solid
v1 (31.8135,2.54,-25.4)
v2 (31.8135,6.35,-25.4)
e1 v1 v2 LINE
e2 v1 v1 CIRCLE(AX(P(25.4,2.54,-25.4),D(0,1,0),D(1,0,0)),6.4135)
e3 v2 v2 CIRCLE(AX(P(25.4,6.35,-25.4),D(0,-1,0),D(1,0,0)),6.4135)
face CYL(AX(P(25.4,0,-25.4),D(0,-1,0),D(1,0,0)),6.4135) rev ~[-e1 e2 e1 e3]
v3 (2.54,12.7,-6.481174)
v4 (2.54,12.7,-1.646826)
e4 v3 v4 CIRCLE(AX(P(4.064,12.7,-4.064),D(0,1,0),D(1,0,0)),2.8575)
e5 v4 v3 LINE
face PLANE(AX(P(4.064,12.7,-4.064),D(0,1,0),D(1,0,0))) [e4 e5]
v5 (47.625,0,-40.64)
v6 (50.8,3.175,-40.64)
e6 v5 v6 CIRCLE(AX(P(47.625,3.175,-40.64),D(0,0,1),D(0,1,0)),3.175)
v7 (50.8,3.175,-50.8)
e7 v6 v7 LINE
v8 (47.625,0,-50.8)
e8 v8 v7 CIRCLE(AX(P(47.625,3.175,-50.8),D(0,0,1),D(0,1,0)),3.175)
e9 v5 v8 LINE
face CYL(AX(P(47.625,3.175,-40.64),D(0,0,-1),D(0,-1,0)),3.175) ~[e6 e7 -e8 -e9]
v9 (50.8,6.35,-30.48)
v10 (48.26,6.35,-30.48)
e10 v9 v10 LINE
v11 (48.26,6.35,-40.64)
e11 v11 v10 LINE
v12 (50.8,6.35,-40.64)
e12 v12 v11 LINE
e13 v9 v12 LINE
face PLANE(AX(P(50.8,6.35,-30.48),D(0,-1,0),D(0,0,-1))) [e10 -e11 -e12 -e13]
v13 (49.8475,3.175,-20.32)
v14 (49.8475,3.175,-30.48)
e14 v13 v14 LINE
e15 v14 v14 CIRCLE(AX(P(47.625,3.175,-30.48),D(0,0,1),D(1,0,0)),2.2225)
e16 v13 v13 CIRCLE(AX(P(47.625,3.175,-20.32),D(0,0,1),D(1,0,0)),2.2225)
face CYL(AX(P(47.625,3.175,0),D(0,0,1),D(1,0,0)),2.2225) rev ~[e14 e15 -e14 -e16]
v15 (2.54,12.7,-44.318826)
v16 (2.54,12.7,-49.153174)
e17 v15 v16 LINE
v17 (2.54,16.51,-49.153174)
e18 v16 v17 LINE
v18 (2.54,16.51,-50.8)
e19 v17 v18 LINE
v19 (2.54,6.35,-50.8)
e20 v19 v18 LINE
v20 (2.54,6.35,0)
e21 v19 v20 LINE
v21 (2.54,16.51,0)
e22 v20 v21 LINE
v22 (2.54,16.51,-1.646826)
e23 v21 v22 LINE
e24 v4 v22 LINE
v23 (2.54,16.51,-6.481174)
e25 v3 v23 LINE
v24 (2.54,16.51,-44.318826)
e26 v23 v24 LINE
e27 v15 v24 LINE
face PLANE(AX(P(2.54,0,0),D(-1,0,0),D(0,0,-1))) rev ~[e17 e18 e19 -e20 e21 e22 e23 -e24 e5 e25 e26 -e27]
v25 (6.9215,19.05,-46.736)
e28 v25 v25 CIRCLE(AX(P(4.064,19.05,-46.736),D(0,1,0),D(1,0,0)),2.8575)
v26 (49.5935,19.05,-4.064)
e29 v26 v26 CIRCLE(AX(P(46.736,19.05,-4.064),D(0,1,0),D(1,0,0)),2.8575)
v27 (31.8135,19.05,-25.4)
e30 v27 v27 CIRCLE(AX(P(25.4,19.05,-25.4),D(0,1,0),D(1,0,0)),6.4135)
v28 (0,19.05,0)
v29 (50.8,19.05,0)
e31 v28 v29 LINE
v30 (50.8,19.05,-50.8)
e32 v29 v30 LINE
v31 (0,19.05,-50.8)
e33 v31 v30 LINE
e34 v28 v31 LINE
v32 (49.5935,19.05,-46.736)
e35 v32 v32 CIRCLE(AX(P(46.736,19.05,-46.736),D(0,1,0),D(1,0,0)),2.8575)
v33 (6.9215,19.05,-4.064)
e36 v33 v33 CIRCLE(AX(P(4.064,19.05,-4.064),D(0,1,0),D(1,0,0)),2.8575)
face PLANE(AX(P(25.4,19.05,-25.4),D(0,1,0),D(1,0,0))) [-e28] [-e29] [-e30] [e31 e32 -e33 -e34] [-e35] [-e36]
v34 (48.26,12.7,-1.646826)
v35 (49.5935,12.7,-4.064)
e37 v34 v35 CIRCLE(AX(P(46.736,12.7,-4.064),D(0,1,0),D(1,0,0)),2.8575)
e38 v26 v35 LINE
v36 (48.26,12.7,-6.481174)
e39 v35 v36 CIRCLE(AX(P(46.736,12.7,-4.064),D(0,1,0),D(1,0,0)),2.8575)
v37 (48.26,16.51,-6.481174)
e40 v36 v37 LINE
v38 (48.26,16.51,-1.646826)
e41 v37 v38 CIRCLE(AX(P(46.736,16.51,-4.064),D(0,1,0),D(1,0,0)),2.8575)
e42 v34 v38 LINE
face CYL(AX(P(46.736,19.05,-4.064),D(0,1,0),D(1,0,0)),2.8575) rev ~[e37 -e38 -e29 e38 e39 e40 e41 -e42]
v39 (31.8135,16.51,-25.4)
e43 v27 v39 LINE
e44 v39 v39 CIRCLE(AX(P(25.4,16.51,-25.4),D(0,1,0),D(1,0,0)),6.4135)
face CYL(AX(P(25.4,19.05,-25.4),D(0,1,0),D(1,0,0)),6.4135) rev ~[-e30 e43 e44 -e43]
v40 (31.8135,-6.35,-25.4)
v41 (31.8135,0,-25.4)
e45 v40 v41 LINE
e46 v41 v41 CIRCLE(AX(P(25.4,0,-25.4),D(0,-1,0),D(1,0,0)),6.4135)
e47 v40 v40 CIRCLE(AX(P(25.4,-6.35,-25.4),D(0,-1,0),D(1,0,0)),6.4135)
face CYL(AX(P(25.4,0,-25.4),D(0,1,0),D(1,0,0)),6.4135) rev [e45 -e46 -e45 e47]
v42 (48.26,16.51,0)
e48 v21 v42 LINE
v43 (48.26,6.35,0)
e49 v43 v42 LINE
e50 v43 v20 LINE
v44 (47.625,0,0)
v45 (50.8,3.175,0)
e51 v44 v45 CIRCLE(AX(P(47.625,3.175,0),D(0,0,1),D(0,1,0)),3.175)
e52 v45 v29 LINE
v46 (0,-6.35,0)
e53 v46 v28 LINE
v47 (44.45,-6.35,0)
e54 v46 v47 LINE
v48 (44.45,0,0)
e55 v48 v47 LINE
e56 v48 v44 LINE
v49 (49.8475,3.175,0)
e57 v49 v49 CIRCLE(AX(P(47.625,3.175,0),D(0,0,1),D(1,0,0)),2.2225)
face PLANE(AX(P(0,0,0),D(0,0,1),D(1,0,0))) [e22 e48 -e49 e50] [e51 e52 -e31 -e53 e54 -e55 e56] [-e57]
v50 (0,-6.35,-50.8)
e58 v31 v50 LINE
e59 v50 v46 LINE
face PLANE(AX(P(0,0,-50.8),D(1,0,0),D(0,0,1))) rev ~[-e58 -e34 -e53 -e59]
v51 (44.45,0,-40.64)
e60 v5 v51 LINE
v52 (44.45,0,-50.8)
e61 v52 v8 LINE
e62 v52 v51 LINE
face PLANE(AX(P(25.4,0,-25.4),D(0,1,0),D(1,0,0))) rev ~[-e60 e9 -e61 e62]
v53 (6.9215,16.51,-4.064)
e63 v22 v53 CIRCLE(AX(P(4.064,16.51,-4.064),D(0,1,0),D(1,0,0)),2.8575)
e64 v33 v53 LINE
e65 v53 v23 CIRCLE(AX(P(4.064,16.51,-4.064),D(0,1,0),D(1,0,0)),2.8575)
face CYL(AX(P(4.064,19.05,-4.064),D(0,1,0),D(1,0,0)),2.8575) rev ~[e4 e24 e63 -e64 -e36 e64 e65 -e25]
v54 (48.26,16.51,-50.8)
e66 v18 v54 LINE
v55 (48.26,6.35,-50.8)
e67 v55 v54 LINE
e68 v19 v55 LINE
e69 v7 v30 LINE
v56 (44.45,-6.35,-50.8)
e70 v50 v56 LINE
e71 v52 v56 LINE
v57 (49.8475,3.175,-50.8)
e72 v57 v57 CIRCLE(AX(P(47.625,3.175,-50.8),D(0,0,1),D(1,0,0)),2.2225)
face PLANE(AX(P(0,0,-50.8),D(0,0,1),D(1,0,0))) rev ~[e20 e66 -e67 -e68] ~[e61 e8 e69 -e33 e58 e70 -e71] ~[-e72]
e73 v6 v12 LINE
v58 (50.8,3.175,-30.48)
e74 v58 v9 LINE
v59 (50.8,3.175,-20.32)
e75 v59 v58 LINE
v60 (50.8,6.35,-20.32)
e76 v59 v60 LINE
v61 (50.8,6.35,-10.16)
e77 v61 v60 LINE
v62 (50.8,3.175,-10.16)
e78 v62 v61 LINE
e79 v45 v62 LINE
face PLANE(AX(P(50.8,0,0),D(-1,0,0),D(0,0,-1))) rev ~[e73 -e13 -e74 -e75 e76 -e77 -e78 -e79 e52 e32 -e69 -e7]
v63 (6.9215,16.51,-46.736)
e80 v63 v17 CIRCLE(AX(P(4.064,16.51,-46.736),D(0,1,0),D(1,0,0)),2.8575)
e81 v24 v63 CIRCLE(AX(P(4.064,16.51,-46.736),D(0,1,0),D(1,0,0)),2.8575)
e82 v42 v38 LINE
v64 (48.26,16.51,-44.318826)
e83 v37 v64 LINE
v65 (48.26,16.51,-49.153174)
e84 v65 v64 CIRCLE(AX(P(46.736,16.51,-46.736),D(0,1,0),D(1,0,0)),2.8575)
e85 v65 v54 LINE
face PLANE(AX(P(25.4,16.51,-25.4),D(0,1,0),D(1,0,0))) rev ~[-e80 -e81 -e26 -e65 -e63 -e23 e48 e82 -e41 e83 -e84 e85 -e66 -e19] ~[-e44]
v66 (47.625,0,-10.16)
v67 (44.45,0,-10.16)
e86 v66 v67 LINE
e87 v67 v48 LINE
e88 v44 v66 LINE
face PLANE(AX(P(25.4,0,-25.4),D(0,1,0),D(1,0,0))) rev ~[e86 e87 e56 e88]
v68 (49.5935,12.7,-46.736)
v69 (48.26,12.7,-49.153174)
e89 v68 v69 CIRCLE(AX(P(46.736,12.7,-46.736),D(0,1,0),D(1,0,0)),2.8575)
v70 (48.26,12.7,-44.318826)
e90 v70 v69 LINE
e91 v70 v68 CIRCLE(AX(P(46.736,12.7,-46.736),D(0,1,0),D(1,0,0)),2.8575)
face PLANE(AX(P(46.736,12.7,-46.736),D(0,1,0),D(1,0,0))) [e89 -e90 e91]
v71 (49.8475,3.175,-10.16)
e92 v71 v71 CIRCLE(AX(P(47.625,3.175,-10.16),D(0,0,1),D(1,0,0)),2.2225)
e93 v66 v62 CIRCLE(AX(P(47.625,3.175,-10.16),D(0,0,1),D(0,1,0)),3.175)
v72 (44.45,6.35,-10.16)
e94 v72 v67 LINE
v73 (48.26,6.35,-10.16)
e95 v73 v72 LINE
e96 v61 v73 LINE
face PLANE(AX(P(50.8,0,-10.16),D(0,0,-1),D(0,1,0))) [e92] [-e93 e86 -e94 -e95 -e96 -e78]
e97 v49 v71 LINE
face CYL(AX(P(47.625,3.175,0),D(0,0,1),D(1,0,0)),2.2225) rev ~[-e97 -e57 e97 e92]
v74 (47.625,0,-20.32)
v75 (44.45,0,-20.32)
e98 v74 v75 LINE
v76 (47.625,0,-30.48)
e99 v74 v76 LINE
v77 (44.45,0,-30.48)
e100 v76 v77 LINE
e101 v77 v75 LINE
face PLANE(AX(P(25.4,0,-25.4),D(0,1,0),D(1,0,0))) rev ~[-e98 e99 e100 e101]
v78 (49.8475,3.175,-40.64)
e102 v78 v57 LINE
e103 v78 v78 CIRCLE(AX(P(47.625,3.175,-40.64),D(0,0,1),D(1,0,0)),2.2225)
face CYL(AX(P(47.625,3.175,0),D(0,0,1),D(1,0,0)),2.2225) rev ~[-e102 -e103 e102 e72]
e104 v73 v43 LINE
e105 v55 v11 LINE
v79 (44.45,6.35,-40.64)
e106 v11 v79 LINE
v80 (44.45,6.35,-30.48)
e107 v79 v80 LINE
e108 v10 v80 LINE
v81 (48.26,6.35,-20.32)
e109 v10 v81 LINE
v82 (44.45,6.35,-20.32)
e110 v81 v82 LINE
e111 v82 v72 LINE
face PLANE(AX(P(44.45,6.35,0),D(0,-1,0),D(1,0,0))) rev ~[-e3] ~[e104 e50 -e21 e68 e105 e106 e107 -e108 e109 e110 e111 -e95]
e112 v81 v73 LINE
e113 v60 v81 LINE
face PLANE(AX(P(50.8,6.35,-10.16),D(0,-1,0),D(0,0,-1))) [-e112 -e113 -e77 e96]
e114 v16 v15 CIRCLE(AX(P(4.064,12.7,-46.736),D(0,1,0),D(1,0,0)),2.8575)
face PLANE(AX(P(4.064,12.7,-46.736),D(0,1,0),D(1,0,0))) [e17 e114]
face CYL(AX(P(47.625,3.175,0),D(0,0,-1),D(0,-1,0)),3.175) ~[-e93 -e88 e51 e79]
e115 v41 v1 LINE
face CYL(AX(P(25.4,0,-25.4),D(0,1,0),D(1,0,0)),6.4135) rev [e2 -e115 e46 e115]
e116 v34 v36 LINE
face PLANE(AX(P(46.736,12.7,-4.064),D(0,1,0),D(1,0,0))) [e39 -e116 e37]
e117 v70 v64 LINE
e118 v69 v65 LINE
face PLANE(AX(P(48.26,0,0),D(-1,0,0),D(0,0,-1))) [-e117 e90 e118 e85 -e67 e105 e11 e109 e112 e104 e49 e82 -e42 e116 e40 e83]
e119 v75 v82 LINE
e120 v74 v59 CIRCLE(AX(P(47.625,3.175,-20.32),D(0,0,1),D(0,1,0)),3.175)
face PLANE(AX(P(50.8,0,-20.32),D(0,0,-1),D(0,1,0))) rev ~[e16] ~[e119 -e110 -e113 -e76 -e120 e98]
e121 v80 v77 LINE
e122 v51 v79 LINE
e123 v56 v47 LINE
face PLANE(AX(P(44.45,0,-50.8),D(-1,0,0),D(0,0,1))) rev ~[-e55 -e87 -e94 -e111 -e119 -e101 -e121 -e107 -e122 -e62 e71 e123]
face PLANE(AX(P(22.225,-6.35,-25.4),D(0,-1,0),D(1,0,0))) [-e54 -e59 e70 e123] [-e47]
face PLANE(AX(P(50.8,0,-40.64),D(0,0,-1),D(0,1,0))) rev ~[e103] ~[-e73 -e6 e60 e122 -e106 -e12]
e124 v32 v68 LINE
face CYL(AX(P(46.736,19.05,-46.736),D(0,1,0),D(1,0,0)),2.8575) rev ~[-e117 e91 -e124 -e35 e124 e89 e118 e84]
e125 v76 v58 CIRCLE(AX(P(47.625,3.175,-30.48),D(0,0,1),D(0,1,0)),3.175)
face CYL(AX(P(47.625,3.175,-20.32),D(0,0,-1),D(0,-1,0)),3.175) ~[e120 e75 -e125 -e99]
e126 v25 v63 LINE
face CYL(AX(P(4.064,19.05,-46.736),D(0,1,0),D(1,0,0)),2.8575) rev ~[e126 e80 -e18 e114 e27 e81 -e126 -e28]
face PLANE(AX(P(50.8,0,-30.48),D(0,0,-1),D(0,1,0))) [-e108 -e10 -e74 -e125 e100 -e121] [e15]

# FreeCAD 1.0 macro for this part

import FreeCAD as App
import Part
import Sketcher
from FreeCAD import Vector
Q = App.Units.Quantity


def edges_at(feature, points):
    """Names of the edges that pass closest to the given points."""
    edges = feature.Shape.Edges
    near = lambda p: min(range(len(edges)), key=lambda i: edges[i].distToShape(Part.Vertex(*p))[0])
    return sorted({f"Edge{near(p) + 1}" for p in points})


def faces_at(feature, points):
    """Names of the faces that lie closest to the given points."""
    faces = feature.Shape.Faces
    near = lambda p: min(range(len(faces)), key=lambda i: faces[i].distToShape(Part.Vertex(*p))[0])
    return sorted({f"Face{near(p) + 1}" for p in points})


def add_polygon(sketch, points):
    """Adds a closed chain of lines whose ends are joined by coincident constraints."""
    first, n = sketch.GeometryCount, len(points)
    for a, b in zip(points, points[1:] + points[:1]):
        sketch.addGeometry(Part.LineSegment(App.Vector(*a, 0), App.Vector(*b, 0)), False)
    for i in range(n):
        sketch.addConstraint(Sketcher.Constraint("Coincident", first + i, 2, first + (i + 1) % n, 1))

doc = App.newDocument("Part")
body = doc.addObject("PartDesign::Body", "Body")

# Sketch on XZ plane
sketch1 = doc.addObject("Sketcher::SketchObject", "Sketch")
body.addObject(sketch1)
sketch1.AttachmentSupport = (doc.XZ_Plane, [""])
sketch1.MapMode = "FlatFace"
add_polygon(sketch1, [(0, -50.8), (0, 0), (50.8, 0), (50.8, -50.8)])  # lines 0-3
sketch1.addConstraint(Sketcher.Constraint("Vertical", 0))
sketch1.addConstraint(Sketcher.Constraint("Horizontal", 1))
sketch1.addConstraint(Sketcher.Constraint("Vertical", 2))
sketch1.addConstraint(Sketcher.Constraint("Horizontal", 3))
sketch1.addConstraint(Sketcher.Constraint("Coincident", 0, 2, -1, 1))
sketch1.addConstraint(Sketcher.Constraint("Equal", 3, 0))
sketch1.addConstraint(Sketcher.Constraint("DistanceX", 1, 1, 1, 2, Q("2 in")))
pad1 = doc.addObject("PartDesign::Pad", "Pad")
body.addObject(pad1)
pad1.Profile = sketch1
pad1.Length = Q("0.75 in")
pad1.Reversed = True
doc.recompute()

thickness = doc.addObject("PartDesign::Thickness", "Thickness")
body.addObject(thickness)
thickness.Base = (pad1, faces_at(pad1, [(25.4, 9.525, -50.8), (25.4, 9.525, 0)]))
thickness.Value = Q("0.1 in")
thickness.Reversed = True
thickness.Join = "Intersection"

# Sketch on XZ plane
sketch2 = doc.addObject("Sketcher::SketchObject", "Sketch001")
body.addObject(sketch2)
sketch2.AttachmentSupport = (doc.XZ_Plane, [""])
sketch2.MapMode = "FlatFace"
sketch2.AttachmentOffset = App.Placement(Vector(0, 0, -0.75 * 25.4), App.Rotation())
sketch2.addGeometry(Part.Circle(Vector(25.4, -25.4, 0), Vector(0, 0, 1), 6.4135), False)
sketch2.addGeometry(Part.Circle(Vector(4.064, -46.736, 0), Vector(0, 0, 1), 2.8575), False)
sketch2.addGeometry(Part.Circle(Vector(46.736, -46.736, 0), Vector(0, 0, 1), 2.8575), False)
sketch2.addGeometry(Part.Circle(Vector(46.736, -4.064, 0), Vector(0, 0, 1), 2.8575), False)
sketch2.addGeometry(Part.Circle(Vector(4.064, -4.064, 0), Vector(0, 0, 1), 2.8575), False)
sketch2.addConstraint(Sketcher.Constraint("Equal", 1, 2))
sketch2.addConstraint(Sketcher.Constraint("Equal", 2, 3))
sketch2.addConstraint(Sketcher.Constraint("Equal", 3, 4))
sketch2.addConstraint(Sketcher.Constraint("Horizontal", 1, 3, 2, 3))
sketch2.addConstraint(Sketcher.Constraint("Horizontal", 3, 3, 4, 3))
sketch2.addConstraint(Sketcher.Constraint("Vertical", 2, 3, 3, 3))
sketch2.addConstraint(Sketcher.Constraint("Vertical", 1, 3, 4, 3))
sketch2.addConstraint(Sketcher.Constraint("Diameter", 0, Q("0.505 in")))
sketch2.addConstraint(Sketcher.Constraint("Diameter", 1, Q("0.225 in")))
sketch2.addConstraint(Sketcher.Constraint("DistanceX", -1, 1, 0, 3, Q("1 in")))
sketch2.addConstraint(Sketcher.Constraint("DistanceY", 0, 3, -1, 1, Q("1 in")))
sketch2.addConstraint(Sketcher.Constraint("DistanceX", -1, 1, 1, 3, Q("0.16 in")))
sketch2.addConstraint(Sketcher.Constraint("DistanceY", 1, 3, -1, 1, Q("1.84 in")))
sketch2.addConstraint(Sketcher.Constraint("DistanceX", -1, 1, 2, 3, Q("1.84 in")))
sketch2.addConstraint(Sketcher.Constraint("DistanceY", 3, 3, -1, 1, Q("0.16 in")))
pocket1 = doc.addObject("PartDesign::Pocket", "Pocket")
body.addObject(pocket1)
pocket1.Profile = sketch2
pocket1.Length = Q("0.25 in")
pocket1.Reversed = True

# Sketch on XY plane
sketch3 = doc.addObject("Sketcher::SketchObject", "Sketch002")
body.addObject(sketch3)
sketch3.AttachmentSupport = (doc.XY_Plane, [""])
sketch3.MapMode = "FlatFace"
add_polygon(sketch3, [(44.45, 6.35), (44.45, 0), (50.8, 0), (50.8, 6.35)])  # lines 0-3
sketch3.addConstraint(Sketcher.Constraint("Vertical", 0))
sketch3.addConstraint(Sketcher.Constraint("Horizontal", 1))
sketch3.addConstraint(Sketcher.Constraint("Vertical", 2))
sketch3.addConstraint(Sketcher.Constraint("Horizontal", 3))
sketch3.addConstraint(Sketcher.Constraint("PointOnObject", 0, 2, -1))
sketch3.addConstraint(Sketcher.Constraint("Equal", 3, 0))
sketch3.addConstraint(Sketcher.Constraint("DistanceX", -1, 1, 1, 2, Q("2 in")))
sketch3.addConstraint(Sketcher.Constraint("DistanceX", 1, 1, 1, 2, Q("0.25 in")))
pad2 = doc.addObject("PartDesign::Pad", "Pad001")
body.addObject(pad2)
pad2.Profile = sketch3
pad2.Length = Q("2 in")
pad2.Reversed = True

# Sketch on XY plane
sketch4 = doc.addObject("Sketcher::SketchObject", "Sketch003")
body.addObject(sketch4)
sketch4.AttachmentSupport = (doc.XY_Plane, [""])
sketch4.MapMode = "FlatFace"
sketch4.addGeometry(Part.Circle(Vector(47.625, 3.175, 0), Vector(0, 0, 1), 2.2225), False)
sketch4.addConstraint(Sketcher.Constraint("Diameter", 0, Q("0.175 in")))
sketch4.addConstraint(Sketcher.Constraint("DistanceX", -1, 1, 0, 3, Q("1.875 in")))
sketch4.addConstraint(Sketcher.Constraint("DistanceY", -1, 1, 0, 3, Q("0.125 in")))
pocket2 = doc.addObject("PartDesign::Pocket", "Pocket001")
body.addObject(pocket2)
pocket2.Profile = sketch4
pocket2.Type = "ThroughAll"

# Sketch on YZ plane
sketch5 = doc.addObject("Sketcher::SketchObject", "Sketch004")
body.addObject(sketch5)
sketch5.AttachmentSupport = (doc.YZ_Plane, [""])
sketch5.MapMode = "FlatFace"
sketch5.AttachmentOffset = App.Placement(Vector(0, 0, 2 * 25.4), App.Rotation())
add_polygon(sketch5, [(6.35, -10.16), (0, -10.16), (0, -20.32), (6.35, -20.32)])  # lines 0-3
add_polygon(sketch5, [(6.35, -30.48), (0, -30.48), (0, -40.64), (6.35, -40.64)])  # lines 4-7
sketch5.addConstraint(Sketcher.Constraint("Horizontal", 0))
sketch5.addConstraint(Sketcher.Constraint("Vertical", 1))
sketch5.addConstraint(Sketcher.Constraint("Horizontal", 2))
sketch5.addConstraint(Sketcher.Constraint("Vertical", 3))
sketch5.addConstraint(Sketcher.Constraint("Horizontal", 4))
sketch5.addConstraint(Sketcher.Constraint("Vertical", 5))
sketch5.addConstraint(Sketcher.Constraint("Horizontal", 6))
sketch5.addConstraint(Sketcher.Constraint("Vertical", 7))
sketch5.addConstraint(Sketcher.Constraint("PointOnObject", 0, 2, -2))
sketch5.addConstraint(Sketcher.Constraint("PointOnObject", 4, 2, -2))
sketch5.addConstraint(Sketcher.Constraint("Vertical", 3, 2, 6, 2))
sketch5.addConstraint(Sketcher.Constraint("Equal", 3, 5))
sketch5.addConstraint(Sketcher.Constraint("DistanceY", 1, 2, 1, 1, Q("0.4 in")))
sketch5.addConstraint(Sketcher.Constraint("DistanceX", 0, 2, 0, 1, Q("0.25 in")))
sketch5.addConstraint(Sketcher.Constraint("DistanceY", 0, 2, -1, 1, Q("0.4 in")))
sketch5.addConstraint(Sketcher.Constraint("DistanceY", 4, 2, -1, 1, Q("1.2 in")))
pocket3 = doc.addObject("PartDesign::Pocket", "Pocket002")
body.addObject(pocket3)
pocket3.Profile = sketch5
pocket3.Length = Q("0.25 in")
doc.recompute()

fillet = doc.addObject("PartDesign::Fillet", "Fillet")
body.addObject(fillet)
fillet.Base = (pocket3, edges_at(pocket3, [(50.8, 0, -25.4), (50.8, 0, -45.72), (50.8, 0, -5.08)]))
fillet.Radius = Q("0.125 in")

# Sketch on XZ plane
sketch6 = doc.addObject("Sketcher::SketchObject", "Sketch005")
body.addObject(sketch6)
sketch6.AttachmentSupport = (doc.XZ_Plane, [""])
sketch6.MapMode = "FlatFace"
sketch6.AttachmentOffset = App.Placement(Vector(0, 0, -0.1 * 25.4), App.Rotation())
sketch6.addGeometry(Part.Circle(Vector(25.4, -25.4, 0), Vector(0, 0, 1), 6.4135), False)
sketch6.addConstraint(Sketcher.Constraint("Diameter", 0, Q("0.505 in")))
sketch6.addConstraint(Sketcher.Constraint("DistanceX", -1, 1, 0, 3, Q("1 in")))
sketch6.addConstraint(Sketcher.Constraint("DistanceY", 0, 3, -1, 1, Q("1 in")))
pocket4 = doc.addObject("PartDesign::Pocket", "Pocket003")
body.addObject(pocket4)
pocket4.Profile = sketch6
pocket4.Length = Q("0.25 in")
pocket4.Reversed = True

# Sketch on XZ plane
sketch7 = doc.addObject("Sketcher::SketchObject", "Sketch006")
body.addObject(sketch7)
sketch7.AttachmentSupport = (doc.XZ_Plane, [""])
sketch7.MapMode = "FlatFace"
add_polygon(sketch7, [(0, 0), (0, -50.8), (44.45, -50.8), (44.45, 0)])  # lines 0-3
sketch7.addGeometry(Part.Circle(Vector(25.4, -25.4, 0), Vector(0, 0, 1), 6.4135), False)  # 4
sketch7.addConstraint(Sketcher.Constraint("Vertical", 0))
sketch7.addConstraint(Sketcher.Constraint("Horizontal", 1))
sketch7.addConstraint(Sketcher.Constraint("Vertical", 2))
sketch7.addConstraint(Sketcher.Constraint("Horizontal", 3))
sketch7.addConstraint(Sketcher.Constraint("Coincident", 3, 2, -1, 1))
sketch7.addConstraint(Sketcher.Constraint("DistanceY", 0, 2, 0, 1, Q("2 in")))
sketch7.addConstraint(Sketcher.Constraint("Diameter", 4, Q("0.505 in")))
sketch7.addConstraint(Sketcher.Constraint("DistanceX", -1, 1, 4, 3, Q("1 in")))
sketch7.addConstraint(Sketcher.Constraint("DistanceY", 4, 3, -1, 1, Q("1 in")))
sketch7.addConstraint(Sketcher.Constraint("DistanceX", 1, 1, 1, 2, Q("1.75 in")))
pad3 = doc.addObject("PartDesign::Pad", "Pad002")
body.addObject(pad3)
pad3.Profile = sketch7
pad3.Type = "TwoLengths"
pad3.Length = Q("0.25 in")
pad3.Length2 = Q("0.25 in")

doc.recompute()
